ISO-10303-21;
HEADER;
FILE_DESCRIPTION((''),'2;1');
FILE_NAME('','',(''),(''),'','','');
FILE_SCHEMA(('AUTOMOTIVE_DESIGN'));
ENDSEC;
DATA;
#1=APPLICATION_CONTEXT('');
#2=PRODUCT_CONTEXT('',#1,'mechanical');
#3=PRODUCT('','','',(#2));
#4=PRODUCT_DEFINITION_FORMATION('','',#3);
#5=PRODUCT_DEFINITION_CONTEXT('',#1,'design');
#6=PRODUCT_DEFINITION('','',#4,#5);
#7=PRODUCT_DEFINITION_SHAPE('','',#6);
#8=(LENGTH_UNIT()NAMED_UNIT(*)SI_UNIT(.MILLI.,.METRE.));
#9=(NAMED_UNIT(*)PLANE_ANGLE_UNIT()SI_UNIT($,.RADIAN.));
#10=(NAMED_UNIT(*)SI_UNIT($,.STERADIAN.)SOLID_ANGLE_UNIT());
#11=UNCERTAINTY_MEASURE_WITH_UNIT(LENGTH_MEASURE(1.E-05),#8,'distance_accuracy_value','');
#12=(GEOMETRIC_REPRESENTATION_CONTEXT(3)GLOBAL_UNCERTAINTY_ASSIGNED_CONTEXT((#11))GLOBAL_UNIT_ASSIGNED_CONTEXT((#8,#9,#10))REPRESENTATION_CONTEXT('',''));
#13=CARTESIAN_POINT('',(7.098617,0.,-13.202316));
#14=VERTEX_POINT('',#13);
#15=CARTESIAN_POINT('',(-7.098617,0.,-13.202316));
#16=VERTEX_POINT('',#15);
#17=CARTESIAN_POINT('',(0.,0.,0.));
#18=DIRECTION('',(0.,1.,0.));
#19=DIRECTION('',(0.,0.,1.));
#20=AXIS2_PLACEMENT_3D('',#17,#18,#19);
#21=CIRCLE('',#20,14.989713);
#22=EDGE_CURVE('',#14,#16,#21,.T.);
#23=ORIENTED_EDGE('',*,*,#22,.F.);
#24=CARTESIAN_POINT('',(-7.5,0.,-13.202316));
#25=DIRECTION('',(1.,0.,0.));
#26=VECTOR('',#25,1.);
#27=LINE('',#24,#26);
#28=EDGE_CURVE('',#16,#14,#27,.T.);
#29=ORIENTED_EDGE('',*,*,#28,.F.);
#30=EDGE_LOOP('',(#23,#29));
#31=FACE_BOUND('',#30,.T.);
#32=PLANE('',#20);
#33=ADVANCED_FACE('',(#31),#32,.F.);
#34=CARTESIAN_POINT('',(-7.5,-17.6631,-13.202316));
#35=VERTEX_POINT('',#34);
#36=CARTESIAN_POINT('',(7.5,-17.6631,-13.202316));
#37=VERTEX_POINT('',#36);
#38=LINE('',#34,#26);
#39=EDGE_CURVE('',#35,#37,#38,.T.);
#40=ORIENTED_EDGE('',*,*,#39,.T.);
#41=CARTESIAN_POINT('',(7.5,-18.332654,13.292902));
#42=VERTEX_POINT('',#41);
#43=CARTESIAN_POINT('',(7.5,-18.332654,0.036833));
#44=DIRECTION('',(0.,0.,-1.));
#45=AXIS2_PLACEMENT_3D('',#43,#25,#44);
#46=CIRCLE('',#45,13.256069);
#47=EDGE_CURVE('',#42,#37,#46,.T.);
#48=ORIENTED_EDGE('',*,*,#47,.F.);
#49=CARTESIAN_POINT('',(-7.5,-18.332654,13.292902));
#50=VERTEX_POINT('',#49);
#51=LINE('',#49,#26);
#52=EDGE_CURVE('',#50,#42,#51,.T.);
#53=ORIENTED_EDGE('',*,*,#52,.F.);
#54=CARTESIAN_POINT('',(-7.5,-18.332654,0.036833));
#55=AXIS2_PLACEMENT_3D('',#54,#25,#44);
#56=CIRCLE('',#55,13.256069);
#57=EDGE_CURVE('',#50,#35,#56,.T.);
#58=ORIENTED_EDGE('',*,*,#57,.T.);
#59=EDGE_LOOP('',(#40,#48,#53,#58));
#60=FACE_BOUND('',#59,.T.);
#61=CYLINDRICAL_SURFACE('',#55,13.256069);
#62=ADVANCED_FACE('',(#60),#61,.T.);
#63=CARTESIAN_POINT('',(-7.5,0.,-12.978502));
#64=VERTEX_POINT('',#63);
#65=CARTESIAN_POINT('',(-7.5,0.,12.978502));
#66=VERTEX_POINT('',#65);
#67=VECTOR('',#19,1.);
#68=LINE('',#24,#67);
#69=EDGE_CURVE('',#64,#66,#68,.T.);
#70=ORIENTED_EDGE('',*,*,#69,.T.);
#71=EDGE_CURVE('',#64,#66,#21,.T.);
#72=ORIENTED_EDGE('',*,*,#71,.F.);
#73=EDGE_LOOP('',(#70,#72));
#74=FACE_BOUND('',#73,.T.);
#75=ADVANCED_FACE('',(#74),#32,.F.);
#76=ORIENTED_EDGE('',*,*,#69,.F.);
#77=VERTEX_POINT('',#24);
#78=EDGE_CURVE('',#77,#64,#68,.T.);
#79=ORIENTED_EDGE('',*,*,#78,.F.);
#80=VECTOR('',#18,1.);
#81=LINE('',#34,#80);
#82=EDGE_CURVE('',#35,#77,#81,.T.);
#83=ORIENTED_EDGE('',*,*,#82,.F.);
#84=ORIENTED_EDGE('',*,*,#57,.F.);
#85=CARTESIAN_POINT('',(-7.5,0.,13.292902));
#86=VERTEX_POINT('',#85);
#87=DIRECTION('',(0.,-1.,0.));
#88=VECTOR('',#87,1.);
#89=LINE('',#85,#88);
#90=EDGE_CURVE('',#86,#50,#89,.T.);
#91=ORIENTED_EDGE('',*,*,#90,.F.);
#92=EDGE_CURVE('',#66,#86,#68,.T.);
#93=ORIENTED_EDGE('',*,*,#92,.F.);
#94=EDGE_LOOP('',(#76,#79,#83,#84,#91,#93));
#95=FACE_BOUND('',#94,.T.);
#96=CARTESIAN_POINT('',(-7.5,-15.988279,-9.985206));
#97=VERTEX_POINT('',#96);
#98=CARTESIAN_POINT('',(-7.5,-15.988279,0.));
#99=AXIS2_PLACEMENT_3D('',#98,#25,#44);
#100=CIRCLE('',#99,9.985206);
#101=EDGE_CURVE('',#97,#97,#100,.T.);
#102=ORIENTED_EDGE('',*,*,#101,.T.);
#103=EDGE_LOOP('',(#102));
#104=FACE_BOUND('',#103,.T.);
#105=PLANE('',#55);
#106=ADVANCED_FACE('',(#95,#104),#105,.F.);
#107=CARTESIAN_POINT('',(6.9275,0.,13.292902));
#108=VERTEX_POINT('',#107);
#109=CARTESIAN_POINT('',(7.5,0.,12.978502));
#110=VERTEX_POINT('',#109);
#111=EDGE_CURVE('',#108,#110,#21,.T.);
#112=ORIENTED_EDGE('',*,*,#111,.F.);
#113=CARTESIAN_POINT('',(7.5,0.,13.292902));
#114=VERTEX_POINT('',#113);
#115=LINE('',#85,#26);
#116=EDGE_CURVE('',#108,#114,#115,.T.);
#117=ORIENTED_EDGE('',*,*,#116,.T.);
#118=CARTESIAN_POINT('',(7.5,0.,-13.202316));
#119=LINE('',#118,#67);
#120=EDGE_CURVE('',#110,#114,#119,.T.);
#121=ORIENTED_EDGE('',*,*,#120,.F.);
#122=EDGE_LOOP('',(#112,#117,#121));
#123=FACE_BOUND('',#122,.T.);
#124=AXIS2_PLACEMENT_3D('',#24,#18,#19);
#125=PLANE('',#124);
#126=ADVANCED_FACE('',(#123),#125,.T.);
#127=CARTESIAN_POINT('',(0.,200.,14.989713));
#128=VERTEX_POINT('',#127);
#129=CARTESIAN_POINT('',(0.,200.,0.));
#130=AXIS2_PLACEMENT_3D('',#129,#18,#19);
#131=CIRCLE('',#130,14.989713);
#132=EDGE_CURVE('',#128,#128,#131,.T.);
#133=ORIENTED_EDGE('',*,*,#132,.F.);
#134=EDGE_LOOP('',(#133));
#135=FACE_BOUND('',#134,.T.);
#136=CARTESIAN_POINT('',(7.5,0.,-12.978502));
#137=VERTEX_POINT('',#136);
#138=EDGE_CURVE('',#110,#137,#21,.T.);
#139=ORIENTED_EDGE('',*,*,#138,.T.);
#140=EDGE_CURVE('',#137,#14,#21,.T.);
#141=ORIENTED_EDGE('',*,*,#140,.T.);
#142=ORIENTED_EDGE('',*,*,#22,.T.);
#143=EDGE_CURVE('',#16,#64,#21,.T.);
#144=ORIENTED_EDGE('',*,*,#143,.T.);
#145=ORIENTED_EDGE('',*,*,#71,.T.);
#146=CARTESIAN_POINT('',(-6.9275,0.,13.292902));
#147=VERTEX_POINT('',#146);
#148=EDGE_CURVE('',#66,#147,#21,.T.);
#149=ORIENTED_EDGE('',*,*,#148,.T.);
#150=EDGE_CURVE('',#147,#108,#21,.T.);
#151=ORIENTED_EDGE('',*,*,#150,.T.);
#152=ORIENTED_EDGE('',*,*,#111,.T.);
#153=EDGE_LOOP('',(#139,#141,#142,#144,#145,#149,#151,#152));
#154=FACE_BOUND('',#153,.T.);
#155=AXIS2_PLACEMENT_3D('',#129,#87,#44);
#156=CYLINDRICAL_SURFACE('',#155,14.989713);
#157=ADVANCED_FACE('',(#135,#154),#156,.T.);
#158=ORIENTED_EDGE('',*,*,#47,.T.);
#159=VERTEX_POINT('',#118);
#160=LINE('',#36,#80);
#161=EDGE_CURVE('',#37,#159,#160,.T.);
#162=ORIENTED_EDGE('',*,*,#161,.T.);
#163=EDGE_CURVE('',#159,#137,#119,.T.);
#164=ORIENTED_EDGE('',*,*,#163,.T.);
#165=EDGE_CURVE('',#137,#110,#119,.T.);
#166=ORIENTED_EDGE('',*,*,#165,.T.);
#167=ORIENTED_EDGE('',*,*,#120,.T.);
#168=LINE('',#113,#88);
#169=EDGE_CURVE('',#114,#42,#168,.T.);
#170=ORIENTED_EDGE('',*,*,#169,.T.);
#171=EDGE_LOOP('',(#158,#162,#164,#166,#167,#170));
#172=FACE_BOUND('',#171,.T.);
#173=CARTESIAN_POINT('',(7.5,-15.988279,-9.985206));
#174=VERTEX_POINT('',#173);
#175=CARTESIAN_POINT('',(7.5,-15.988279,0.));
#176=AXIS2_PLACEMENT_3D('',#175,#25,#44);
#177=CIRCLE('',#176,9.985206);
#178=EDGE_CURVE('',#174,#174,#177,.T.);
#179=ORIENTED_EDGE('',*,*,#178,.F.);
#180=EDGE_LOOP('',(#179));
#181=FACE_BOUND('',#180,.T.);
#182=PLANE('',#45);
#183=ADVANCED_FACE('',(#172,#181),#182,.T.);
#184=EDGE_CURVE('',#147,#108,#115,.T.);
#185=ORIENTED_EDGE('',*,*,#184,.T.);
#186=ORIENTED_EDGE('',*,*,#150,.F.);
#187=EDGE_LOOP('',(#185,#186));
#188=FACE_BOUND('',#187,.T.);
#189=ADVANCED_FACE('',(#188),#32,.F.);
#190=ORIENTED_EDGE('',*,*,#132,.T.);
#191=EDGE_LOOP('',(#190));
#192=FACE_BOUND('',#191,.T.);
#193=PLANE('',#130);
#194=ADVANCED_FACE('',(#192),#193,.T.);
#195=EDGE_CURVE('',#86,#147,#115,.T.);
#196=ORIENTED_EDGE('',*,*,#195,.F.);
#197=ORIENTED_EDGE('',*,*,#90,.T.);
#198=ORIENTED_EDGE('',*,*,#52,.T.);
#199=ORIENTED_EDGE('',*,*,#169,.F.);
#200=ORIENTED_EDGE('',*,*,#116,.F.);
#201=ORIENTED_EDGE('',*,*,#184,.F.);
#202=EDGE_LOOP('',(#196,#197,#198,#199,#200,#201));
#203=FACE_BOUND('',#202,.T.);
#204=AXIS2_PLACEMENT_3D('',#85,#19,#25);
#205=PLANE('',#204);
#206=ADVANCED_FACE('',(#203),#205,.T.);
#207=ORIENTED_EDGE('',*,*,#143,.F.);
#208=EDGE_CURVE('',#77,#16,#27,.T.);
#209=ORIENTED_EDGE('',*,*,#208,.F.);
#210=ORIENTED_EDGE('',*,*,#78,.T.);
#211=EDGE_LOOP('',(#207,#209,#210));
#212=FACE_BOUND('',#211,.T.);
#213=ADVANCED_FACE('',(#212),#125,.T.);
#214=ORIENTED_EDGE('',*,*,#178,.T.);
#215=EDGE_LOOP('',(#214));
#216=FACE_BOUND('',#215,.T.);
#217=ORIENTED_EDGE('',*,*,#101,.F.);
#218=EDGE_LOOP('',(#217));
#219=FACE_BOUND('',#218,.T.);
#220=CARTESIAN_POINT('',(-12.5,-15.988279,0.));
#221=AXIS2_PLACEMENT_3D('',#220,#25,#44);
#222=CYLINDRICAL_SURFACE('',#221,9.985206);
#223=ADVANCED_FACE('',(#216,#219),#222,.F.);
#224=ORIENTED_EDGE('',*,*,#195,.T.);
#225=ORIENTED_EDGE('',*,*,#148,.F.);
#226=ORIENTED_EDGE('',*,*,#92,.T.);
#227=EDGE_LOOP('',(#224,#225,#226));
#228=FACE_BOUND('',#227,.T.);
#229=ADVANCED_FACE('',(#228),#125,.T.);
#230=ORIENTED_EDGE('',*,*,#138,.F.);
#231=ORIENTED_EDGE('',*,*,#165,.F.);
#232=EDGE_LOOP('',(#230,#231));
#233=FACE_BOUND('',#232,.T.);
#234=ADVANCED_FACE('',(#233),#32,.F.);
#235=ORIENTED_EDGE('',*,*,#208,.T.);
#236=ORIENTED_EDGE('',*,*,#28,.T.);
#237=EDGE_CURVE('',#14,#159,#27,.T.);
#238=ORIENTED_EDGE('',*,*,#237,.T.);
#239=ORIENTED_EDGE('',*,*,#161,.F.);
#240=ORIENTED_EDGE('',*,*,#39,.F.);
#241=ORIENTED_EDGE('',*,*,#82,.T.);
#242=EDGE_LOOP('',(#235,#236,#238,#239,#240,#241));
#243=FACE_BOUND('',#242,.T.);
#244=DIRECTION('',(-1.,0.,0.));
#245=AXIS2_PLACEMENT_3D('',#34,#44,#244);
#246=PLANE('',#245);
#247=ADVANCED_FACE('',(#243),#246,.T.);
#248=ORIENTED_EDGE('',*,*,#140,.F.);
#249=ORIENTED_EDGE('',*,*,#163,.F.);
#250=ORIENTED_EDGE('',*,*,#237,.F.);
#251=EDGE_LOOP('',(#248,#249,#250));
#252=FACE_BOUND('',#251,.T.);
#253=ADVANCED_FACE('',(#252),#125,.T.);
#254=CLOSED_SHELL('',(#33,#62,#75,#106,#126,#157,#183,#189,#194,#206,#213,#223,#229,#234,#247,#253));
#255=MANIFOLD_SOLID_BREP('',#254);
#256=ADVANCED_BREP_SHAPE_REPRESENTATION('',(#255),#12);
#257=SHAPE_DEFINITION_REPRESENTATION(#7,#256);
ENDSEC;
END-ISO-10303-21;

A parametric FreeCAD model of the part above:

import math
import FreeCAD as App
import Part
import Sketcher
Q = App.Units.Quantity

doc = App.newDocument("Part")
params = doc.addObject("Spreadsheet::Sheet", "Params")
for row, (alias, value) in enumerate([
    ("pad1_length", "200 mm"),
    ("pad2_length", "15 mm"),
    ("pocket1_length", "40 mm"),
], start=1):
    params.set(f"A{row}", alias)
    params.set(f"B{row}", "=" + value)
    params.setAlias(f"B{row}", alias)

body = doc.addObject("PartDesign::Body", "Body")

sketch1 = body.newObject("Sketcher::SketchObject", "Sketch")
sketch1.AttachmentSupport = (doc.getObject("XZ_Plane"), [""])
sketch1.MapMode = "FlatFace"
sketch1.addGeometry(Part.Circle(App.Vector(0, 0, 0), App.Vector(0, 0, 1), 15), False)
sketch1.addConstraint([
    Sketcher.Constraint("Coincident", 0, 3, -1, 1),
    Sketcher.Constraint("Diameter", 0, Q("29.979427 mm")),
])
pad1 = body.newObject("PartDesign::Pad", "Pad")
pad1.Profile = sketch1
pad1.setExpression("Length", "Params.pad1_length")
pad1.Reversed = True

sketch2 = body.newObject("Sketcher::SketchObject", "Sketch001")
sketch2.AttachmentSupport = (doc.getObject("YZ_Plane"), [""])
sketch2.MapMode = "FlatFace"
sketch2.addGeometry([
    Part.LineSegment(App.Vector(-18, 13, 0), App.Vector(0, 13, 0)),
    Part.LineSegment(App.Vector(0, 13, 0), App.Vector(0, -13, 0)),
    Part.LineSegment(App.Vector(0, -13, 0), App.Vector(-18, -13, 0)),
    Part.ArcOfCircle(Part.Circle(App.Vector(-18, 0, 0), App.Vector(0, 0, 1), 13), math.radians(90), math.radians(273)),
], False)
sketch2.addConstraint([
    Sketcher.Constraint("Coincident", 0, 2, 1, 1),
    Sketcher.Constraint("Coincident", 1, 2, 2, 1),
    Sketcher.Constraint("Coincident", 2, 2, 3, 2),
    Sketcher.Constraint("Tangent", 3, 1, 0, 1),
    Sketcher.Constraint("Horizontal", 0),
    Sketcher.Constraint("Vertical", 1),
    Sketcher.Constraint("Horizontal", 2),
    Sketcher.Constraint("PointOnObject", 0, 2, -2),
    Sketcher.Constraint("Radius", 3, Q("13.256069 mm")),
    Sketcher.Constraint("DistanceX", 2, 2, 2, 1, Q("17.6631 mm")),
    Sketcher.Constraint("DistanceY", -1, 1, 0, 2, Q("13.292902 mm")),
    Sketcher.Constraint("DistanceX", 0, 1, 0, 2, Q("18.332654 mm")),
])
pad2 = body.newObject("PartDesign::Pad", "Pad001")
pad2.Profile = sketch2
pad2.setExpression("Length", "Params.pad2_length")
pad2.Midplane = True

sketch3 = body.newObject("Sketcher::SketchObject", "Sketch002")
sketch3.AttachmentSupport = (doc.getObject("YZ_Plane"), [""])
sketch3.MapMode = "FlatFace"
sketch3.AttachmentOffset = App.Placement(App.Vector(0, 0, 7.5), App.Rotation())
sketch3.addGeometry(Part.Circle(App.Vector(-16, 0, 0), App.Vector(0, 0, 1), 10), False)
sketch3.addConstraint([
    Sketcher.Constraint("PointOnObject", 0, 3, -1),
    Sketcher.Constraint("Diameter", 0, Q("19.970412 mm")),
    Sketcher.Constraint("DistanceX", 0, 3, -1, 1, Q("15.988279 mm")),
])
pocket1 = body.newObject("PartDesign::Pocket", "Pocket")
pocket1.Profile = sketch3
pocket1.setExpression("Length", "Params.pocket1_length")
pocket1.Midplane = True

doc.recompute()
